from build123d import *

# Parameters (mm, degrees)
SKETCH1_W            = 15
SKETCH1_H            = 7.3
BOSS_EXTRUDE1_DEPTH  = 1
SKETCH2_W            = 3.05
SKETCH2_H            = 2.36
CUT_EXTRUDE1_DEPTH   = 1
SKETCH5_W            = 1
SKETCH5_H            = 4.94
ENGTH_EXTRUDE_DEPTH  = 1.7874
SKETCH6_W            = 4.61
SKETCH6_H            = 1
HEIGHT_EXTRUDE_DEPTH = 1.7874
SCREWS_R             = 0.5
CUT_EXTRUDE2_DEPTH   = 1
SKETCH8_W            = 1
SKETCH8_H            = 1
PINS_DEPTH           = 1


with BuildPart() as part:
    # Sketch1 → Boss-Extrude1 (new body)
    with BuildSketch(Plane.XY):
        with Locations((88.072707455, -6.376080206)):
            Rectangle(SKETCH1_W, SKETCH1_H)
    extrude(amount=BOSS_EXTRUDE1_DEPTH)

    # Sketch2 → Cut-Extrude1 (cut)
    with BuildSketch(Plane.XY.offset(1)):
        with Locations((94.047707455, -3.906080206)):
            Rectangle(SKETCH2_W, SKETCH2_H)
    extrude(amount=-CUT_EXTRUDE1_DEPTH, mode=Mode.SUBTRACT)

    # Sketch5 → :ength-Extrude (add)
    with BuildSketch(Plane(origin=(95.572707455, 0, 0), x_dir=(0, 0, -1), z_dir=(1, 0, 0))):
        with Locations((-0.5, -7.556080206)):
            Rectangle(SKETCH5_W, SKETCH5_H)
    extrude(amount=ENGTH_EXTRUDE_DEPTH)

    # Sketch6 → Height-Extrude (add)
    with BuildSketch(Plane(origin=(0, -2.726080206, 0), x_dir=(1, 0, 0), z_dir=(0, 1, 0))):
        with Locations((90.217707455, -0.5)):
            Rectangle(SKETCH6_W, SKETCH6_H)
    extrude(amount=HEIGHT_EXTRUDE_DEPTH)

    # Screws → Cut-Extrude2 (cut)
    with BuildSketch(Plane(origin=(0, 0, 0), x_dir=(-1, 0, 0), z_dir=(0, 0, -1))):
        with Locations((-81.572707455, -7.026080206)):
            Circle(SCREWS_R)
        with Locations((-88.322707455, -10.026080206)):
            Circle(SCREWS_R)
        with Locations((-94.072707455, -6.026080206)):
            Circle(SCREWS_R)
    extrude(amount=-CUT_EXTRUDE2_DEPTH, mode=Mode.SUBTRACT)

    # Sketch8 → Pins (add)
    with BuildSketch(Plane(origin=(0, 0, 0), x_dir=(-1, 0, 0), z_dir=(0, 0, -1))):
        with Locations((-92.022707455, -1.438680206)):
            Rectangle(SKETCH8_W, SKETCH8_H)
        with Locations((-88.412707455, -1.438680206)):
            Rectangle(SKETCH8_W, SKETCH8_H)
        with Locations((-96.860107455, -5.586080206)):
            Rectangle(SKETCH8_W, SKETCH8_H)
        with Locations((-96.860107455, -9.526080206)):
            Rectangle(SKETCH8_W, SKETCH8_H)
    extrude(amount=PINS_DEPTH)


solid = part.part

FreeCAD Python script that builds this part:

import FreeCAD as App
import Part
import Sketcher
Q = App.Units.Quantity

doc = App.newDocument("Part")
params = doc.addObject("Spreadsheet::Sheet", "Params")
for row, (alias, value) in enumerate([
    ("sketch1_width", "15 mm"),
    ("sketch1_height", "7.3 mm"),
    ("pad1_length", "1 mm"),
    ("sketch2_width", "3.05 mm"),
    ("sketch2_height", "2.36 mm"),
    ("pocket1_length", "1 mm"),
    ("sketch3_height", "1 mm"),
    ("sketch3_width", "4.94 mm"),
    ("pad2_length", "1.7874 mm"),
    ("sketch4_height", "1 mm"),
    ("sketch4_width", "4.61 mm"),
    ("pad3_length", "1.7874 mm"),
    ("sketch5_diameter", "1 mm"),
    ("pocket2_length", "1 mm"),
    ("sketch6_width", "1 mm"),
    ("pad4_length", "1 mm"),
], start=1):
    params.set(f"A{row}", alias)
    params.set(f"B{row}", "=" + value)
    params.setAlias(f"B{row}", alias)

body = doc.addObject("PartDesign::Body", "Body")

# Sketch on XY plane
sketch1 = body.newObject("Sketcher::SketchObject", "Sketch")
sketch1.AttachmentSupport = (doc.getObject("XY_Plane"), [""])
sketch1.MapMode = "FlatFace"
sketch1.addGeometry([
    Part.LineSegment(App.Vector(81, -3, 0), App.Vector(81, -10, 0)),
    Part.LineSegment(App.Vector(81, -10, 0), App.Vector(96, -10, 0)),
    Part.LineSegment(App.Vector(96, -10, 0), App.Vector(96, -3, 0)),
    Part.LineSegment(App.Vector(96, -3, 0), App.Vector(81, -3, 0)),
], False)
sketch1.addConstraint([
    Sketcher.Constraint("Coincident", 0, 2, 1, 1),
    Sketcher.Constraint("Coincident", 1, 2, 2, 1),
    Sketcher.Constraint("Coincident", 2, 2, 3, 1),
    Sketcher.Constraint("Coincident", 3, 2, 0, 1),
    Sketcher.Constraint("Vertical", 0),
    Sketcher.Constraint("Horizontal", 1),
    Sketcher.Constraint("Vertical", 2),
    Sketcher.Constraint("Horizontal", 3),
    Sketcher.Constraint("DistanceX", 1, 1, 1, 2, Q("15 mm")),
    Sketcher.Constraint("DistanceY", 0, 2, 0, 1, Q("7.3 mm")),
    Sketcher.Constraint("DistanceY", 0, 2, -1, 1, Q("10.02608 mm")),
    Sketcher.Constraint("DistanceX", -1, 1, 0, 2, Q("80.572707 mm")),
])
sketch1.setExpression("Constraints[8]", "Params.sketch1_width")
sketch1.setExpression("Constraints[9]", "Params.sketch1_height")
pad1 = body.newObject("PartDesign::Pad", "Pad")
pad1.Profile = sketch1
pad1.setExpression("Length", "Params.pad1_length")

# Sketch on XY plane
sketch2 = body.newObject("Sketcher::SketchObject", "Sketch001")
sketch2.AttachmentSupport = (doc.getObject("XY_Plane"), [""])
sketch2.MapMode = "FlatFace"
sketch2.AttachmentOffset = App.Placement(App.Vector(0, 0, 1), App.Rotation())
sketch2.addGeometry([
    Part.LineSegment(App.Vector(92.5, -2.7, 0), App.Vector(92.5, -5.1, 0)),
    Part.LineSegment(App.Vector(92.5, -5.1, 0), App.Vector(95.6, -5.1, 0)),
    Part.LineSegment(App.Vector(95.6, -5.1, 0), App.Vector(95.6, -2.7, 0)),
    Part.LineSegment(App.Vector(95.6, -2.7, 0), App.Vector(92.5, -2.7, 0)),
], False)
sketch2.addConstraint([
    Sketcher.Constraint("Coincident", 0, 2, 1, 1),
    Sketcher.Constraint("Coincident", 1, 2, 2, 1),
    Sketcher.Constraint("Coincident", 2, 2, 3, 1),
    Sketcher.Constraint("Coincident", 3, 2, 0, 1),
    Sketcher.Constraint("Vertical", 0),
    Sketcher.Constraint("Horizontal", 1),
    Sketcher.Constraint("Vertical", 2),
    Sketcher.Constraint("Horizontal", 3),
    Sketcher.Constraint("DistanceX", 1, 1, 1, 2, Q("3.05 mm")),
    Sketcher.Constraint("DistanceY", 0, 2, 0, 1, Q("2.36 mm")),
    Sketcher.Constraint("DistanceY", 0, 2, -1, 1, Q("5.08608 mm")),
    Sketcher.Constraint("DistanceX", -1, 1, 0, 2, Q("92.522707 mm")),
])
sketch2.setExpression("Constraints[8]", "Params.sketch2_width")
sketch2.setExpression("Constraints[9]", "Params.sketch2_height")
pocket1 = body.newObject("PartDesign::Pocket", "Pocket")
pocket1.Profile = sketch2
pocket1.setExpression("Length", "Params.pocket1_length")

# Sketch on YZ plane
sketch3 = body.newObject("Sketcher::SketchObject", "Sketch002")
sketch3.AttachmentSupport = (doc.getObject("YZ_Plane"), [""])
sketch3.MapMode = "FlatFace"
sketch3.AttachmentOffset = App.Placement(App.Vector(0, 0, 95.572707), App.Rotation())
sketch3.addGeometry([
    Part.LineSegment(App.Vector(-5.1, 1, 0), App.Vector(-10, 1, 0)),
    Part.LineSegment(App.Vector(-10, 1, 0), App.Vector(-10, 0, 0)),
    Part.LineSegment(App.Vector(-10, 0, 0), App.Vector(-5.1, 0, 0)),
    Part.LineSegment(App.Vector(-5.1, 0, 0), App.Vector(-5.1, 1, 0)),
], False)
sketch3.addConstraint([
    Sketcher.Constraint("Coincident", 0, 2, 1, 1),
    Sketcher.Constraint("Coincident", 1, 2, 2, 1),
    Sketcher.Constraint("Coincident", 2, 2, 3, 1),
    Sketcher.Constraint("Coincident", 3, 2, 0, 1),
    Sketcher.Constraint("Horizontal", 0),
    Sketcher.Constraint("Vertical", 1),
    Sketcher.Constraint("Horizontal", 2),
    Sketcher.Constraint("Vertical", 3),
    Sketcher.Constraint("PointOnObject", 1, 2, -1),
    Sketcher.Constraint("DistanceY", 1, 2, 1, 1, Q("1 mm")),
    Sketcher.Constraint("DistanceX", 0, 2, 0, 1, Q("4.94 mm")),
    Sketcher.Constraint("DistanceX", 0, 2, -1, 1, Q("10.02608 mm")),
])
sketch3.setExpression("Constraints[9]", "Params.sketch3_height")
sketch3.setExpression("Constraints[10]", "Params.sketch3_width")
pad2 = body.newObject("PartDesign::Pad", "Pad001")
pad2.Profile = sketch3
pad2.setExpression("Length", "Params.pad2_length")

# Sketch on XZ plane
sketch4 = body.newObject("Sketcher::SketchObject", "Sketch003")
sketch4.AttachmentSupport = (doc.getObject("XZ_Plane"), [""])
sketch4.MapMode = "FlatFace"
sketch4.AttachmentOffset = App.Placement(App.Vector(0, 0, 2.72608), App.Rotation())
sketch4.addGeometry([
    Part.LineSegment(App.Vector(87.9, 0, 0), App.Vector(87.9, 1, 0)),
    Part.LineSegment(App.Vector(87.9, 1, 0), App.Vector(92.5, 1, 0)),
    Part.LineSegment(App.Vector(92.5, 1, 0), App.Vector(92.5, 0, 0)),
    Part.LineSegment(App.Vector(92.5, 0, 0), App.Vector(87.9, 0, 0)),
], False)
sketch4.addConstraint([
    Sketcher.Constraint("Coincident", 0, 2, 1, 1),
    Sketcher.Constraint("Coincident", 1, 2, 2, 1),
    Sketcher.Constraint("Coincident", 2, 2, 3, 1),
    Sketcher.Constraint("Coincident", 3, 2, 0, 1),
    Sketcher.Constraint("Vertical", 0),
    Sketcher.Constraint("Horizontal", 1),
    Sketcher.Constraint("Vertical", 2),
    Sketcher.Constraint("Horizontal", 3),
    Sketcher.Constraint("PointOnObject", 2, 2, -1),
    Sketcher.Constraint("DistanceY", 0, 1, 0, 2, Q("1 mm")),
    Sketcher.Constraint("DistanceX", 1, 1, 1, 2, Q("4.61 mm")),
    Sketcher.Constraint("DistanceX", -1, 1, 0, 2, Q("87.912707 mm")),
])
sketch4.setExpression("Constraints[9]", "Params.sketch4_height")
sketch4.setExpression("Constraints[10]", "Params.sketch4_width")
pad3 = body.newObject("PartDesign::Pad", "Pad002")
pad3.Profile = sketch4
pad3.setExpression("Length", "Params.pad3_length")
pad3.Reversed = True

# Sketch on XY plane
sketch5 = body.newObject("Sketcher::SketchObject", "Sketch004")
sketch5.AttachmentSupport = (doc.getObject("XY_Plane"), [""])
sketch5.MapMode = "FlatFace"
sketch5.addGeometry([
    Part.Circle(App.Vector(81.6, -7, 0), App.Vector(0, 0, 1), 0.5),
    Part.Circle(App.Vector(88.3, -10, 0), App.Vector(0, 0, 1), 0.5),
    Part.Circle(App.Vector(94.1, -6, 0), App.Vector(0, 0, 1), 0.5),
], False)
sketch5.addConstraint([
    Sketcher.Constraint("Equal", 0, 1),
    Sketcher.Constraint("Equal", 1, 2),
    Sketcher.Constraint("Diameter", 0, Q("1 mm")),
    Sketcher.Constraint("DistanceY", 1, 3, 0, 3, Q("3 mm")),
    Sketcher.Constraint("DistanceY", 1, 3, 2, 3, Q("4 mm")),
    Sketcher.Constraint("DistanceX", 0, 3, 2, 3, Q("12.5 mm")),
    Sketcher.Constraint("DistanceX", 0, 3, 1, 3, Q("6.75 mm")),
    Sketcher.Constraint("DistanceY", 0, 3, -1, 1, Q("7.02608 mm")),
    Sketcher.Constraint("DistanceX", -1, 1, 0, 3, Q("81.572707 mm")),
])
sketch5.setExpression("Constraints[2]", "Params.sketch5_diameter")
pocket2 = body.newObject("PartDesign::Pocket", "Pocket001")
pocket2.Profile = sketch5
pocket2.setExpression("Length", "Params.pocket2_length")
pocket2.Reversed = True

# Sketch on XY plane
sketch6 = body.newObject("Sketcher::SketchObject", "Sketch005")
sketch6.AttachmentSupport = (doc.getObject("XY_Plane"), [""])
sketch6.MapMode = "FlatFace"
sketch6.addGeometry([
    Part.LineSegment(App.Vector(92.5, -0.9, 0), App.Vector(92.5, -1.9, 0)),  # 0
    Part.LineSegment(App.Vector(92.5, -1.9, 0), App.Vector(91.5, -1.9, 0)),  # 1
    Part.LineSegment(App.Vector(91.5, -1.9, 0), App.Vector(91.5, -0.9, 0)),  # 2
    Part.LineSegment(App.Vector(91.5, -0.9, 0), App.Vector(92.5, -0.9, 0)),  # 3
    Part.LineSegment(App.Vector(88.9, -0.9, 0), App.Vector(88.9, -1.9, 0)),  # 4
    Part.LineSegment(App.Vector(88.9, -1.9, 0), App.Vector(87.9, -1.9, 0)),  # 5
    Part.LineSegment(App.Vector(87.9, -1.9, 0), App.Vector(87.9, -0.9, 0)),  # 6
    Part.LineSegment(App.Vector(87.9, -0.9, 0), App.Vector(88.9, -0.9, 0)),  # 7
    Part.LineSegment(App.Vector(97.4, -5.1, 0), App.Vector(97.4, -6.1, 0)),  # 8
    Part.LineSegment(App.Vector(97.4, -6.1, 0), App.Vector(96.4, -6.1, 0)),  # 9
    Part.LineSegment(App.Vector(96.4, -6.1, 0), App.Vector(96.4, -5.1, 0)),  # 10
    Part.LineSegment(App.Vector(96.4, -5.1, 0), App.Vector(97.4, -5.1, 0)),  # 11
    Part.LineSegment(App.Vector(97.4, -9, 0), App.Vector(97.4, -10, 0)),  # 12
    Part.LineSegment(App.Vector(97.4, -10, 0), App.Vector(96.4, -10, 0)),  # 13
    Part.LineSegment(App.Vector(96.4, -10, 0), App.Vector(96.4, -9, 0)),  # 14
    Part.LineSegment(App.Vector(96.4, -9, 0), App.Vector(97.4, -9, 0)),  # 15
], False)
sketch6.addConstraint([
    Sketcher.Constraint("Coincident", 0, 2, 1, 1),
    Sketcher.Constraint("Coincident", 1, 2, 2, 1),
    Sketcher.Constraint("Coincident", 2, 2, 3, 1),
    Sketcher.Constraint("Coincident", 3, 2, 0, 1),
    Sketcher.Constraint("Coincident", 4, 2, 5, 1),
    Sketcher.Constraint("Coincident", 5, 2, 6, 1),
    Sketcher.Constraint("Coincident", 6, 2, 7, 1),
    Sketcher.Constraint("Coincident", 7, 2, 4, 1),
    Sketcher.Constraint("Coincident", 8, 2, 9, 1),
    Sketcher.Constraint("Coincident", 9, 2, 10, 1),
    Sketcher.Constraint("Coincident", 10, 2, 11, 1),
    Sketcher.Constraint("Coincident", 11, 2, 8, 1),
    Sketcher.Constraint("Coincident", 12, 2, 13, 1),
    Sketcher.Constraint("Coincident", 13, 2, 14, 1),
    Sketcher.Constraint("Coincident", 14, 2, 15, 1),
    Sketcher.Constraint("Coincident", 15, 2, 12, 1),
    Sketcher.Constraint("Vertical", 0),
    Sketcher.Constraint("Horizontal", 1),
    Sketcher.Constraint("Vertical", 2),
    Sketcher.Constraint("Horizontal", 3),
    Sketcher.Constraint("Vertical", 4),
    Sketcher.Constraint("Horizontal", 5),
    Sketcher.Constraint("Vertical", 6),
    Sketcher.Constraint("Horizontal", 7),
    Sketcher.Constraint("Vertical", 8),
    Sketcher.Constraint("Horizontal", 9),
    Sketcher.Constraint("Vertical", 10),
    Sketcher.Constraint("Horizontal", 11),
    Sketcher.Constraint("Vertical", 12),
    Sketcher.Constraint("Horizontal", 13),
    Sketcher.Constraint("Vertical", 14),
    Sketcher.Constraint("Horizontal", 15),
    Sketcher.Constraint("Horizontal", 1, 2, 4, 2),
    Sketcher.Constraint("Horizontal", 3, 2, 6, 2),
    Sketcher.Constraint("Vertical", 11, 2, 12, 2),
    Sketcher.Constraint("Vertical", 10, 2, 13, 2),
    Sketcher.Constraint("Equal", 3, 5),
    Sketcher.Constraint("Equal", 7, 9),
    Sketcher.Constraint("Equal", 15, 0),
    Sketcher.Constraint("Equal", 6, 8),
    Sketcher.Constraint("Equal", 10, 12),
    Sketcher.Constraint("DistanceX", 1, 2, 1, 1, Q("1 mm")),
    Sketcher.Constraint("DistanceX", 4, 2, 1, 2, Q("2.61 mm")),
    Sketcher.Constraint("DistanceY", 12, 2, 8, 2, Q("3.94 mm")),
    Sketcher.Constraint("DistanceX", 0, 2, 8, 2, Q("4.8374 mm")),
    Sketcher.Constraint("DistanceY", 8, 2, 0, 2, Q("4.1474 mm")),
    Sketcher.Constraint("DistanceY", 0, 2, -1, 1, Q("1.93868 mm")),
    Sketcher.Constraint("DistanceX", -1, 1, 0, 2, Q("92.522707 mm")),
])
sketch6.setExpression("Constraints[41]", "Params.sketch6_width")
pad4 = body.newObject("PartDesign::Pad", "Pad003")
pad4.Profile = sketch6
pad4.setExpression("Length", "Params.pad4_length")
pad4.Reversed = True

doc.recompute()
